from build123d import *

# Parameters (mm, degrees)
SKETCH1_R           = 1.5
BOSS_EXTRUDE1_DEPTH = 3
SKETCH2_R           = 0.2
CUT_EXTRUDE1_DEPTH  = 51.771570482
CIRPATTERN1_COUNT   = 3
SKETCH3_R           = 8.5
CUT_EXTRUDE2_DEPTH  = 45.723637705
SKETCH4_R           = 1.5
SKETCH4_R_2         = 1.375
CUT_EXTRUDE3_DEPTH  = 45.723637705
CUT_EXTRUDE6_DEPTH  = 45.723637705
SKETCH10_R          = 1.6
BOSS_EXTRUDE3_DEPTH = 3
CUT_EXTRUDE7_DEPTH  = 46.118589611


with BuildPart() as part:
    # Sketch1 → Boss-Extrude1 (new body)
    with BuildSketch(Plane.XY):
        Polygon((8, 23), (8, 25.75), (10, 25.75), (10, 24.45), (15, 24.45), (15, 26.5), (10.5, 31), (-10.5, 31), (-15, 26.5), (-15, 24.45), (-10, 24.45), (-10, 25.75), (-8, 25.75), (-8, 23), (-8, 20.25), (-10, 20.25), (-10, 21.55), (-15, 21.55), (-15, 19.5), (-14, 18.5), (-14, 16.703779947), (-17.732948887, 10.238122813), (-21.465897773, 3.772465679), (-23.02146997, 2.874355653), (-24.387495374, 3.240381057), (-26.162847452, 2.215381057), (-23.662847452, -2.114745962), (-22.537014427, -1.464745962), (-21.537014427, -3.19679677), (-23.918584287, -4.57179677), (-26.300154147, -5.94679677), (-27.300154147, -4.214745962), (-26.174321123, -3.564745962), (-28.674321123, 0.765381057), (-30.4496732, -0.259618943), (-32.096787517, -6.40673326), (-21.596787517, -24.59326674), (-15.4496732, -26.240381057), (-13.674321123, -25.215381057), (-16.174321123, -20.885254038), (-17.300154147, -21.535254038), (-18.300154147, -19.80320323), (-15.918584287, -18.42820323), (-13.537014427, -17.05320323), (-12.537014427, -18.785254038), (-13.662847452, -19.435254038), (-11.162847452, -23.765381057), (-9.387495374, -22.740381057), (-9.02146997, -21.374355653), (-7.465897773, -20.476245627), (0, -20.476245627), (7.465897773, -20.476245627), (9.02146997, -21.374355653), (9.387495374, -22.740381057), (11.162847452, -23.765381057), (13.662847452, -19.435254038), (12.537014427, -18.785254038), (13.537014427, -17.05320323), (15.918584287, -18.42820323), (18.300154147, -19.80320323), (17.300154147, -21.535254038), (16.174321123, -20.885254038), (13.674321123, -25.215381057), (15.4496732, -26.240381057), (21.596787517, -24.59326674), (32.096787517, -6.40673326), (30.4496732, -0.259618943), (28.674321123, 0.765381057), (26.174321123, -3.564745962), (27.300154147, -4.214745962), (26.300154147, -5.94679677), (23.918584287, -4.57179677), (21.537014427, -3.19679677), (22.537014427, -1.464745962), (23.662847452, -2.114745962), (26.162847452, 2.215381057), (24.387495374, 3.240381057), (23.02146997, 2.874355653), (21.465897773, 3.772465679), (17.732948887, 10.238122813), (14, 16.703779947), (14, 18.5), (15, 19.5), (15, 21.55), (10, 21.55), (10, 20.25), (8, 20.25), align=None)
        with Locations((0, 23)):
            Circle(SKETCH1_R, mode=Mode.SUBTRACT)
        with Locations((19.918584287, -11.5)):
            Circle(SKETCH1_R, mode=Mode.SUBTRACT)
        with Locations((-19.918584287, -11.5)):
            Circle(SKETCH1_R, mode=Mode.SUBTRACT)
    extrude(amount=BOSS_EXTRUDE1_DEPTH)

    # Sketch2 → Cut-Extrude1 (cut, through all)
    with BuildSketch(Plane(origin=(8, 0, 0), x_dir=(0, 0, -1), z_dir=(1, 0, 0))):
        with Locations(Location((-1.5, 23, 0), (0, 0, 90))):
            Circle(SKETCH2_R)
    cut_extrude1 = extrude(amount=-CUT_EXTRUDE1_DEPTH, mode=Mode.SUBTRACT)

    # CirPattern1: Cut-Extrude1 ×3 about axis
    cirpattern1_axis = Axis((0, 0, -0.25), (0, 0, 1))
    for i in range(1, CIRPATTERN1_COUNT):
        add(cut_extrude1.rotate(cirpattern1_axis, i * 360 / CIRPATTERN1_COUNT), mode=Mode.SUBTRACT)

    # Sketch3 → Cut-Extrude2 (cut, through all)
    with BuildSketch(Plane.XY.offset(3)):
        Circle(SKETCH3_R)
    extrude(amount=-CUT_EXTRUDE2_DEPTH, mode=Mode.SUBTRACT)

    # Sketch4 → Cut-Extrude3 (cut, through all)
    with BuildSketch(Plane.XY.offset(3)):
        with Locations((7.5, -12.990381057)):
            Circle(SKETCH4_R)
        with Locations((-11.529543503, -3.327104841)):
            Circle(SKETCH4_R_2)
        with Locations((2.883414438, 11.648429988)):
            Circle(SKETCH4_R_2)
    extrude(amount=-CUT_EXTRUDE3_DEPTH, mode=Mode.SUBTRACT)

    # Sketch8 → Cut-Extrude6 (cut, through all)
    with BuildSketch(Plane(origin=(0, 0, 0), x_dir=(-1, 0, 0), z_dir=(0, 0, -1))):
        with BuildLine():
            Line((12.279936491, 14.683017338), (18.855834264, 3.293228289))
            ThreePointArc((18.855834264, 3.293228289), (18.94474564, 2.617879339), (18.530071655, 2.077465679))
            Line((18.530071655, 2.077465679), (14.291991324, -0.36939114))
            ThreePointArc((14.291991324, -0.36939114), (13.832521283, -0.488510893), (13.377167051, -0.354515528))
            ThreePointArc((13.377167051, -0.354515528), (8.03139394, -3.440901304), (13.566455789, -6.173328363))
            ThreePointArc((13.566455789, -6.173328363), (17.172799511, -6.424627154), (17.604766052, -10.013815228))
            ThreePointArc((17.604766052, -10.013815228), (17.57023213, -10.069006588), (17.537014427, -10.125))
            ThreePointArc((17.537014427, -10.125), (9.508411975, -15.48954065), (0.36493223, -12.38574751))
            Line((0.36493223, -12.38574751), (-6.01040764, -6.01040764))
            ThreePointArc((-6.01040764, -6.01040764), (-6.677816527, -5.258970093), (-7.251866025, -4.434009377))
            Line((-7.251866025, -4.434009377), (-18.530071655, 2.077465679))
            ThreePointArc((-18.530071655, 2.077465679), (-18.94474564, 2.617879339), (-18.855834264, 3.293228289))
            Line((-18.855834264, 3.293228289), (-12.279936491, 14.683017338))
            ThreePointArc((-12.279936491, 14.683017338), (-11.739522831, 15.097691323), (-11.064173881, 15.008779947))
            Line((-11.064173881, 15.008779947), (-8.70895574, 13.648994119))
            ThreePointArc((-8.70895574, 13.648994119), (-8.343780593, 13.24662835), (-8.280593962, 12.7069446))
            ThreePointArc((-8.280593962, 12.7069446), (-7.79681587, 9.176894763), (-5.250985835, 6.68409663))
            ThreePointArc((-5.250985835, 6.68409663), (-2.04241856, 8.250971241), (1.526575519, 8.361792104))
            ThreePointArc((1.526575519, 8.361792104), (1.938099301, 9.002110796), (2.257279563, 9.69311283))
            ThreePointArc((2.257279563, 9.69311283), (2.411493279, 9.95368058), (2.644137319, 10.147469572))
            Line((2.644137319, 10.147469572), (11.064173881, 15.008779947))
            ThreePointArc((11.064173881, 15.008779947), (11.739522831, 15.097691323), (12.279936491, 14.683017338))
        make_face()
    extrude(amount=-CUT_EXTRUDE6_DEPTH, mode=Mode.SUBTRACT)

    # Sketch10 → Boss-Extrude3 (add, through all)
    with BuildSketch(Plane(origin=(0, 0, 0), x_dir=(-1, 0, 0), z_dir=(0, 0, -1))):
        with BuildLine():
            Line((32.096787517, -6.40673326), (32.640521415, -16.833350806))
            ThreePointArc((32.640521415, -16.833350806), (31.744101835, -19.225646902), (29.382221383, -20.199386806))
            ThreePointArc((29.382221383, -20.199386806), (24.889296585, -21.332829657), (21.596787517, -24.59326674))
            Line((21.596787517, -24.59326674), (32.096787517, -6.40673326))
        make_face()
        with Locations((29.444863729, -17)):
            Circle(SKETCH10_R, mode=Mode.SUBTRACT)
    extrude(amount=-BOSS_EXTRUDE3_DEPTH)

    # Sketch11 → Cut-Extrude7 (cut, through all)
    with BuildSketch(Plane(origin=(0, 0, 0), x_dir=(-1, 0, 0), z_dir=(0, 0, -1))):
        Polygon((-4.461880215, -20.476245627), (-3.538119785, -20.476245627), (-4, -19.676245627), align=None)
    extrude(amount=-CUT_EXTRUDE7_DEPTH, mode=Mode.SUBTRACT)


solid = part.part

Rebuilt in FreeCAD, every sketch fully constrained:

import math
import FreeCAD as App
import Part
import Sketcher
Q = App.Units.Quantity


def add_polygon(sketch, points):
    """Adds a closed chain of lines whose ends are joined by coincident constraints."""
    first, n = sketch.GeometryCount, len(points)
    for a, b in zip(points, points[1:] + points[:1]):
        sketch.addGeometry(Part.LineSegment(App.Vector(*a, 0), App.Vector(*b, 0)), False)
    for i in range(n):
        sketch.addConstraint(Sketcher.Constraint("Coincident", first + i, 2, first + (i + 1) % n, 1))

doc = App.newDocument("Part")
params = doc.addObject("Spreadsheet::Sheet", "Params")
for row, (alias, value) in enumerate([
    ("sketch1_diameter", "3 mm"),
    ("sketch1_width", "2 mm"),
    ("sketch1_width2", "5 mm"),
    ("sketch1_width3", "21 mm"),
    ("sketch1_length", "5 mm"),
    ("pad1_length", "3 mm"),
    ("sketch2_diameter", "0.4 mm"),
    ("sketch3_diameter", "17 mm"),
    ("sketch4_diameter", "3 mm"),
    ("sketch4_diameter2", "2.75 mm"),
    ("sketch5_radius", "5.5 mm"),
    ("sketch5_radius2", "8.5 mm"),
    ("sketch5_radius3", "3.5 mm"),
    ("sketch5_radius4", "0.89 mm"),
    ("sketch5_radius5", "2.750001 mm"),
    ("sketch6_diameter", "3.2 mm"),
    ("sketch6_radius", "3.2 mm"),
    ("sketch6_length", "21 mm"),
    ("pad2_length", "3 mm"),
], start=1):
    params.set(f"A{row}", alias)
    params.set(f"B{row}", "=" + value)
    params.setAlias(f"B{row}", alias)

body = doc.addObject("PartDesign::Body", "Body")

sketch1 = body.newObject("Sketcher::SketchObject", "Sketch")
sketch1.AttachmentSupport = (doc.getObject("XY_Plane"), [""])
sketch1.MapMode = "FlatFace"
add_polygon(sketch1, [(8, 25.8), (10, 25.8), (10, 24.4), (15, 24.4), (15, 26.5), (10.5, 31), (-10.5, 31), (-15, 26.5), (-15, 24.4), (-10, 24.4), (-10, 25.8), (-8, 25.8), (-8, 20.2), (-10, 20.2), (-10, 21.6), (-15, 21.6), (-15, 19.5), (-14, 18.5), (-14, 16.7), (-17.7, 10.2), (-21.5, 3.8), (-23, 2.9), (-24.4, 3.2), (-26.2, 2.2), (-23.7, -2.1), (-22.5, -1.5), (-21.5, -3.2), (-26.3, -5.9), (-27.3, -4.2), (-26.2, -3.6), (-28.7, 0.8), (-30.4, -0.3), (-32.1, -6.4), (-21.6, -24.6), (-15.4, -26.2), (-13.7, -25.2), (-16.2, -20.9), (-17.3, -21.5), (-18.3, -19.8), (-13.5, -17.1), (-12.5, -18.8), (-13.7, -19.4), (-11.2, -23.8), (-9.4, -22.7), (-9, -21.4), (-7.5, -20.5), (7.5, -20.5), (9, -21.4), (9.4, -22.7), (11.2, -23.8), (13.7, -19.4), (12.5, -18.8), (13.5, -17.1), (18.3, -19.8), (17.3, -21.5), (16.2, -20.9), (13.7, -25.2), (15.4, -26.2), (21.6, -24.6), (32.1, -6.4), (30.4, -0.3), (28.7, 0.8), (26.2, -3.6), (27.3, -4.2), (26.3, -5.9), (21.5, -3.2), (22.5, -1.5), (23.7, -2.1), (26.2, 2.2), (24.4, 3.2), (23, 2.9), (21.5, 3.8), (17.7, 10.2), (14, 16.7), (14, 18.5), (15, 19.5), (15, 21.6), (10, 21.6), (10, 20.2), (8, 20.2)])
sketch1.addGeometry(Part.Circle(App.Vector(-19.9, -11.5, 0), App.Vector(0, 0, 1), 1.5), False)
sketch1.addGeometry(Part.Circle(App.Vector(19.9, -11.5, 0), App.Vector(0, 0, 1), 1.5), False)
sketch1.addGeometry(Part.Circle(App.Vector(0, 23, 0), App.Vector(0, 0, 1), 1.5), False)
sketch1.addConstraint([
    Sketcher.Constraint("Horizontal", 0),
    Sketcher.Constraint("Vertical", 1),
    Sketcher.Constraint("Horizontal", 2),
    Sketcher.Constraint("Vertical", 3),
    Sketcher.Constraint("Horizontal", 5),
    Sketcher.Constraint("Vertical", 7),
    Sketcher.Constraint("Horizontal", 8),
    Sketcher.Constraint("Vertical", 9),
    Sketcher.Constraint("Horizontal", 10),
    Sketcher.Constraint("Vertical", 11),
    Sketcher.Constraint("Horizontal", 12),
    Sketcher.Constraint("Vertical", 13),
    Sketcher.Constraint("Horizontal", 14),
    Sketcher.Constraint("Vertical", 15),
    Sketcher.Constraint("Vertical", 17),
    Sketcher.Constraint("Horizontal", 45),
    Sketcher.Constraint("Vertical", 73),
    Sketcher.Constraint("Vertical", 75),
    Sketcher.Constraint("Horizontal", 76),
    Sketcher.Constraint("Vertical", 77),
    Sketcher.Constraint("Horizontal", 78),
    Sketcher.Constraint("Vertical", 79),
    Sketcher.Constraint("Equal", 80, 81),
    Sketcher.Constraint("Equal", 81, 82),
    Sketcher.Constraint("Symmetric", 80, 3, 81, 3, -2),
    Sketcher.Constraint("Symmetric", 3, 2, 6, 2, -2),
    Sketcher.Constraint("Symmetric", 1, 2, 8, 2, -2),
    Sketcher.Constraint("Symmetric", 43, 2, 46, 2, -2),
    Sketcher.Constraint("Symmetric", 42, 2, 47, 2, -2),
    Sketcher.Constraint("Symmetric", 41, 2, 48, 2, -2),
    Sketcher.Constraint("Symmetric", 40, 2, 49, 2, -2),
    Sketcher.Constraint("Symmetric", 39, 2, 50, 2, -2),
    Sketcher.Constraint("Symmetric", 38, 2, 51, 2, -2),
    Sketcher.Constraint("Symmetric", 37, 2, 52, 2, -2),
    Sketcher.Constraint("Symmetric", 36, 2, 53, 2, -2),
    Sketcher.Constraint("Symmetric", 35, 2, 54, 2, -2),
    Sketcher.Constraint("Symmetric", 34, 2, 55, 2, -2),
    Sketcher.Constraint("Symmetric", 33, 2, 56, 2, -2),
    Sketcher.Constraint("Symmetric", 32, 2, 57, 2, -2),
    Sketcher.Constraint("Symmetric", 31, 2, 58, 2, -2),
    Sketcher.Constraint("Symmetric", 30, 2, 59, 2, -2),
    Sketcher.Constraint("Symmetric", 29, 2, 60, 2, -2),
    Sketcher.Constraint("Symmetric", 28, 2, 61, 2, -2),
    Sketcher.Constraint("Symmetric", 27, 2, 62, 2, -2),
    Sketcher.Constraint("Symmetric", 26, 2, 63, 2, -2),
    Sketcher.Constraint("Symmetric", 25, 2, 64, 2, -2),
    Sketcher.Constraint("Symmetric", 24, 2, 65, 2, -2),
    Sketcher.Constraint("Symmetric", 23, 2, 66, 2, -2),
    Sketcher.Constraint("Symmetric", 22, 2, 67, 2, -2),
    Sketcher.Constraint("Symmetric", 21, 2, 68, 2, -2),
    Sketcher.Constraint("Symmetric", 20, 2, 69, 2, -2),
    Sketcher.Constraint("Symmetric", 19, 2, 70, 2, -2),
    Sketcher.Constraint("Symmetric", 18, 2, 71, 2, -2),
    Sketcher.Constraint("Symmetric", 17, 2, 72, 2, -2),
    Sketcher.Constraint("Symmetric", 15, 2, 74, 2, -2),
    Sketcher.Constraint("Symmetric", 13, 2, 76, 2, -2),
    Sketcher.Constraint("Symmetric", 11, 2, 78, 2, -2),
    Sketcher.Constraint("PointOnObject", 82, 3, -2),
    Sketcher.Constraint("Perpendicular", 4, 6),
    Sketcher.Constraint("Perpendicular", 6, 16),
    Sketcher.Constraint("Parallel", 18, 19),
    Sketcher.Constraint("Parallel", 20, 22),
    Sketcher.Constraint("Perpendicular", 22, 23),
    Sketcher.Constraint("Perpendicular", 23, 24),
    Sketcher.Constraint("Perpendicular", 24, 25),
    Sketcher.Constraint("Perpendicular", 25, 26),
    Sketcher.Constraint("Perpendicular", 26, 27),
    Sketcher.Constraint("Perpendicular", 27, 28),
    Sketcher.Constraint("Perpendicular", 28, 29),
    Sketcher.Constraint("Perpendicular", 29, 30),
    Sketcher.Constraint("Perpendicular", 21, 31),
    Sketcher.Constraint("Perpendicular", 30, 32),
    Sketcher.Constraint("Perpendicular", 31, 33),
    Sketcher.Constraint("Perpendicular", 32, 34),
    Sketcher.Constraint("Perpendicular", 34, 35),
    Sketcher.Constraint("Perpendicular", 35, 36),
    Sketcher.Constraint("Perpendicular", 36, 37),
    Sketcher.Constraint("Perpendicular", 37, 38),
    Sketcher.Constraint("Perpendicular", 38, 39),
    Sketcher.Constraint("Perpendicular", 39, 40),
    Sketcher.Constraint("Perpendicular", 40, 41),
    Sketcher.Constraint("Perpendicular", 41, 42),
    Sketcher.Constraint("Perpendicular", 33, 43),
    Sketcher.Constraint("Parallel", 42, 44),
    Sketcher.Constraint("Perpendicular", 19, 46),
    Sketcher.Constraint("Parallel", 46, 48),
    Sketcher.Constraint("Perpendicular", 16, 74),
    Sketcher.Constraint("Horizontal", 0, 2, 9, 2),
    Sketcher.Constraint("Horizontal", 16, 2, 73, 2),
    Sketcher.Constraint("Vertical", 9, 2, 12, 2),
    Sketcher.Constraint("Vertical", 7, 2, 14, 2),
    Sketcher.Constraint("Equal", 9, 13),
    Sketcher.Constraint("Equal", 7, 15),
    Sketcher.Constraint("Equal", 18, 19),
    Sketcher.Constraint("Equal", 16, 21),
    Sketcher.Constraint("Equal", 25, 27),
    Sketcher.Constraint("Equal", 24, 28),
    Sketcher.Constraint("Equal", 23, 29),
    Sketcher.Constraint("Equal", 22, 30),
    Sketcher.Constraint("Equal", 6, 31),
    Sketcher.Constraint("Equal", 31, 33),
    Sketcher.Constraint("Equal", 30, 34),
    Sketcher.Constraint("Equal", 29, 35),
    Sketcher.Constraint("Equal", 28, 36),
    Sketcher.Constraint("Equal", 27, 37),
    Sketcher.Constraint("Equal", 26, 38),
    Sketcher.Constraint("Equal", 37, 39),
    Sketcher.Constraint("Equal", 36, 40),
    Sketcher.Constraint("Equal", 35, 41),
    Sketcher.Constraint("Equal", 34, 42),
    Sketcher.Constraint("Equal", 21, 43),
    Sketcher.Constraint("Equal", 20, 44),
    Sketcher.Constraint("Diameter", 80, 3.0),
    Sketcher.Constraint("DistanceX", 0, 1, 0, 2, 2.0),
    Sketcher.Constraint("DistanceX", 2, 1, 2, 2, 5.0),
    Sketcher.Constraint("DistanceX", 5, 2, 5, 1, 21.0),
    Sketcher.Constraint("Angle", 18, Q("-120 deg")),
    Sketcher.Constraint("Angle", 21, Q("165 deg")),
    Sketcher.Constraint("Distance", 23, 5.0),
    Sketcher.Constraint("Distance", 25, 2.0),
    Sketcher.Constraint("Distance", 32, 21.0),
    Sketcher.Constraint("DistanceY", 1, 2, 1, 1, 1.3),
    Sketcher.Constraint("DistanceY", 11, 2, 11, 1, 5.5),
    Sketcher.Constraint("DistanceY", -1, 1, 82, 3, 23.0),
    Sketcher.Constraint("DistanceX", -1, 1, 0, 2, 10.0),
    Sketcher.Constraint("DistanceY", -1, 1, 4, 2, 31.0),
    Sketcher.Constraint("DistanceX", 16, 2, -1, 1, 14.0),
    Sketcher.Constraint("Distance", 24, 1.3),
    Sketcher.Constraint("Distance", 26, 5.5),
    Sketcher.Constraint("DistanceY", 3, 1, 3, 2, 2.05),
    Sketcher.Constraint("DistanceY", 80, 3, -1, 1, 11.5),
    Sketcher.Constraint("Distance", 22, 2.05),
    Sketcher.Constraint("DistanceY", 17, 2, 17, 1, 1.79622),
    Sketcher.Constraint("Distance", 20, 1.79622),
    Sketcher.Constraint("DistanceX", 45, 1, 45, 2, 14.931796),
    Sketcher.Constraint("DistanceX", 80, 3, -1, 1, 19.918584),
])
sketch1.setExpression("Constraints[192]", "Params.sketch1_diameter")
sketch1.setExpression("Constraints[193]", "Params.sketch1_width")
sketch1.setExpression("Constraints[194]", "Params.sketch1_width2")
sketch1.setExpression("Constraints[195]", "Params.sketch1_width3")
sketch1.setExpression("Constraints[198]", "Params.sketch1_length")
pad1 = body.newObject("PartDesign::Pad", "Pad")
pad1.Profile = sketch1
pad1.setExpression("Length", "Params.pad1_length")

sketch2 = body.newObject("Sketcher::SketchObject", "Sketch001")
sketch2.AttachmentSupport = (doc.getObject("YZ_Plane"), [""])
sketch2.MapMode = "FlatFace"
sketch2.AttachmentOffset = App.Placement(App.Vector(0, 0, 8), App.Rotation())
sketch2.addGeometry(Part.Circle(App.Vector(23, 1.5, 0), App.Vector(0, 0, 1), 0.2), False)
sketch2.addConstraint([
    Sketcher.Constraint("Diameter", 0, 0.4),
    Sketcher.Constraint("DistanceX", -1, 1, 0, 3, 23.0),
    Sketcher.Constraint("DistanceY", -1, 1, 0, 3, 1.5),
])
sketch2.setExpression("Constraints[0]", "Params.sketch2_diameter")
pocket1 = body.newObject("PartDesign::Pocket", "Pocket")
pocket1.Profile = sketch2
pocket1.Type = "ThroughAll"
doc.recompute()

polarpattern = body.newObject("PartDesign::PolarPattern", "PolarPattern")
polarpattern.Originals = [pocket1]
polarpattern.Axis = (doc.getObject("Z_Axis"), [""])
polarpattern.Angle = 360
polarpattern.Occurrences = 3
body.Tip = polarpattern

sketch3 = body.newObject("Sketcher::SketchObject", "Sketch002")
sketch3.AttachmentSupport = (doc.getObject("XY_Plane"), [""])
sketch3.MapMode = "FlatFace"
sketch3.AttachmentOffset = App.Placement(App.Vector(0, 0, 3), App.Rotation())
sketch3.addGeometry(Part.Circle(App.Vector(0, 0, 0), App.Vector(0, 0, 1), 8), False)
sketch3.addConstraint([
    Sketcher.Constraint("Coincident", 0, 3, -1, 1),
    Sketcher.Constraint("Diameter", 0, 17.0),
])
sketch3.setExpression("Constraints[1]", "Params.sketch3_diameter")
pocket2 = body.newObject("PartDesign::Pocket", "Pocket001")
pocket2.Profile = sketch3
pocket2.Type = "ThroughAll"

sketch4 = body.newObject("Sketcher::SketchObject", "Sketch003")
sketch4.AttachmentSupport = (doc.getObject("XY_Plane"), [""])
sketch4.MapMode = "FlatFace"
sketch4.AttachmentOffset = App.Placement(App.Vector(0, 0, 3), App.Rotation())
sketch4.addGeometry([
    Part.Circle(App.Vector(7.5, -13, 0), App.Vector(0, 0, 1), 1.5),
    Part.Circle(App.Vector(-11.5, -3.3, 0), App.Vector(0, 0, 1), 1.4),
    Part.Circle(App.Vector(2.9, 11.6, 0), App.Vector(0, 0, 1), 1.4),
], False)
sketch4.addConstraint([
    Sketcher.Constraint("Equal", 1, 2),
    Sketcher.Constraint("Diameter", 0, 3.0),
    Sketcher.Constraint("Diameter", 1, 2.75),
    Sketcher.Constraint("DistanceX", -1, 1, 0, 3, 7.5),
    Sketcher.Constraint("DistanceY", 0, 3, -1, 1, 12.990381),
    Sketcher.Constraint("DistanceY", -1, 1, 2, 3, 11.64843),
    Sketcher.Constraint("DistanceX", 1, 3, -1, 1, 11.529544),
    Sketcher.Constraint("DistanceY", 1, 3, -1, 1, 3.327105),
    Sketcher.Constraint("DistanceX", -1, 1, 2, 3, 2.883414),
])
sketch4.setExpression("Constraints[1]", "Params.sketch4_diameter")
sketch4.setExpression("Constraints[2]", "Params.sketch4_diameter2")
pocket3 = body.newObject("PartDesign::Pocket", "Pocket002")
pocket3.Profile = sketch4
pocket3.Type = "ThroughAll"

sketch5 = body.newObject("Sketcher::SketchObject", "Sketch004")
sketch5.AttachmentSupport = (doc.getObject("XY_Plane"), [""])
sketch5.MapMode = "FlatFace"
sketch5.addGeometry([
    Part.LineSegment(App.Vector(-18.86, 3.29, 0), App.Vector(-12.28, 14.68, 0)),
    Part.ArcOfCircle(Part.Circle(App.Vector(-11.51, 14.24, 0), App.Vector(0, 0, 1), 0.89), math.radians(60), math.radians(150)),
    Part.LineSegment(App.Vector(-11.06, 15.01, 0), App.Vector(-2.64, 10.15, 0)),
    Part.ArcOfCircle(Part.Circle(App.Vector(-3.09, 9.38, 0), App.Vector(0, 0, 1), 0.89), math.radians(21), math.radians(60)),
    Part.ArcOfCircle(Part.Circle(App.Vector(2.88, 11.65, 0), App.Vector(0, 0, 1), 5.5), math.radians(-159.18), math.radians(-143.3)),
    Part.ArcOfCircle(Part.Circle(App.Vector(0, 0, 0), App.Vector(0, 0, 1), 8.5), math.radians(52), math.radians(100)),
    Part.ArcOfCircle(Part.Circle(App.Vector(2.88, 11.65, 0), App.Vector(0, 0, 1), 5.5), math.radians(-65), math.radians(11)),
    Part.ArcOfCircle(Part.Circle(App.Vector(9.15, 12.88, 0), App.Vector(0, 0, 1), 0.89), math.radians(120), math.radians(191)),
    Part.LineSegment(App.Vector(8.71, 13.65, 0), App.Vector(11.06, 15.01, 0)),
    Part.ArcOfCircle(Part.Circle(App.Vector(11.51, 14.24, 0), App.Vector(0, 0, 1), 0.89), math.radians(30), math.radians(120)),
    Part.LineSegment(App.Vector(12.28, 14.68, 0), App.Vector(18.86, 3.29, 0)),
    Part.ArcOfCircle(Part.Circle(App.Vector(18.09, 2.85, 0), App.Vector(0, 0, 1), 0.89), math.radians(-60), math.radians(30)),
    Part.LineSegment(App.Vector(18.53, 2.08, 0), App.Vector(7.25, -4.43, 0)),
    Part.ArcOfCircle(Part.Circle(App.Vector(0, 0, 0), App.Vector(0, 0, 1), 8.5), math.radians(-45), math.radians(-31.44)),
    Part.LineSegment(App.Vector(6.01, -6.01, 0), App.Vector(-0.36, -12.39, 0)),
    Part.ArcOfCircle(Part.Circle(App.Vector(-8.08, -4.67, 0), App.Vector(0, 0, 1), 10.92), math.radians(-150), math.radians(-45)),
    Part.ArcOfCircle(Part.Circle(App.Vector(-19.92, -11.5, 0), App.Vector(0, 0, 1), 2.75), math.radians(30), math.radians(32.71)),
    Part.ArcOfCircle(Part.Circle(App.Vector(-15.22, -8.48, 0), App.Vector(0, 0, 1), 2.84), math.radians(54), math.radians(213)),
    Part.ArcOfCircle(Part.Circle(App.Vector(-11.53, -3.33, 0), App.Vector(0, 0, 1), 3.5), math.radians(-126), math.radians(122)),
    Part.ArcOfCircle(Part.Circle(App.Vector(-13.85, 0.4, 0), App.Vector(0, 0, 1), 0.89), math.radians(-120), math.radians(-58)),
    Part.LineSegment(App.Vector(-14.29, -0.37, 0), App.Vector(-18.53, 2.08, 0)),
    Part.ArcOfCircle(Part.Circle(App.Vector(-18.09, 2.85, 0), App.Vector(0, 0, 1), 0.89), math.radians(150), math.radians(240)),
], False)
sketch5.addConstraint([
    Sketcher.Constraint("Tangent", 0, 2, 1, 2),
    Sketcher.Constraint("Tangent", 1, 1, 2, 1),
    Sketcher.Constraint("Tangent", 2, 2, 3, 2),
    Sketcher.Constraint("Tangent", 3, 1, 4, 1),
    Sketcher.Constraint("Coincident", 4, 2, 5, 2),
    Sketcher.Constraint("Coincident", 5, 1, 6, 1),
    Sketcher.Constraint("Tangent", 6, 2, 7, 2),
    Sketcher.Constraint("Tangent", 7, 1, 8, 1),
    Sketcher.Constraint("Tangent", 8, 2, 9, 2),
    Sketcher.Constraint("Tangent", 9, 1, 10, 1),
    Sketcher.Constraint("Tangent", 10, 2, 11, 2),
    Sketcher.Constraint("Tangent", 11, 1, 12, 1),
    Sketcher.Constraint("Coincident", 12, 2, 13, 2),
    Sketcher.Constraint("Tangent", 13, 1, 14, 1),
    Sketcher.Constraint("Tangent", 14, 2, 15, 2),
    Sketcher.Constraint("Tangent", 15, 1, 16, 1),
    Sketcher.Constraint("Tangent", 16, 2, 17, 2),
    Sketcher.Constraint("Tangent", 17, 1, 18, 1),
    Sketcher.Constraint("Tangent", 18, 2, 19, 2),
    Sketcher.Constraint("Tangent", 19, 1, 20, 1),
    Sketcher.Constraint("Tangent", 20, 2, 21, 2),
    Sketcher.Constraint("Tangent", 21, 1, 0, 1),
    Sketcher.Constraint("Coincident", 5, 3, -1, 1),
    Sketcher.Constraint("Coincident", 13, 3, -1, 1),
    Sketcher.Constraint("Coincident", 6, 3, 4, 3),
    Sketcher.Constraint("Equal", 1, 3),
    Sketcher.Constraint("Equal", 4, 6),
    Sketcher.Constraint("Equal", 3, 7),
    Sketcher.Constraint("Equal", 7, 9),
    Sketcher.Constraint("Equal", 9, 11),
    Sketcher.Constraint("Equal", 5, 13),
    Sketcher.Constraint("Equal", 11, 19),
    Sketcher.Constraint("Equal", 19, 21),
    Sketcher.Constraint("Symmetric", 1, 3, 9, 3, -2),
    Sketcher.Constraint("Symmetric", 11, 3, 21, 3, -2),
    Sketcher.Constraint("Perpendicular", 0, 2),
    Sketcher.Constraint("Perpendicular", 8, 10),
    Sketcher.Constraint("Perpendicular", 10, 12),
    Sketcher.Constraint("Parallel", 2, 20),
    Sketcher.Constraint("Radius", 4, 5.5),
    Sketcher.Constraint("Radius", 5, 8.5),
    Sketcher.Constraint("Radius", 18, 3.5),
    Sketcher.Constraint("Angle", 0, Q("60 deg")),
    Sketcher.Constraint("Angle", 14, Q("-135 deg")),
    Sketcher.Constraint("Radius", 1, 0.89),
    Sketcher.Constraint("Radius", 16, 2.750001),
    Sketcher.Constraint("DistanceY", 16, 3, -1, 1, 11.5),
    Sketcher.Constraint("Radius", 17, 2.83716),
    Sketcher.Constraint("DistanceY", 15, 1, -1, 1, 10.125),
    Sketcher.Constraint("Radius", 15, 10.915855),
    Sketcher.Constraint("DistanceY", 6, 3, 7, 3, 1.229802),
    Sketcher.Constraint("DistanceY", 11, 3, 6, 3, 8.800202),
    Sketcher.Constraint("DistanceY", 15, 3, 21, 3, 7.515301),
    Sketcher.Constraint("DistanceX", 0, 2, 3, 3, 9.190799),
    Sketcher.Constraint("DistanceY", 13, 1, 12, 2, 1.576398),
    Sketcher.Constraint("DistanceX", 19, 3, -1, 1, 13.846991),
    Sketcher.Constraint("DistanceY", 17, 1, -1, 1, 6.173328),
])
sketch5.setExpression("Constraints[39]", "Params.sketch5_radius")
sketch5.setExpression("Constraints[40]", "Params.sketch5_radius2")
sketch5.setExpression("Constraints[41]", "Params.sketch5_radius3")
sketch5.setExpression("Constraints[44]", "Params.sketch5_radius4")
sketch5.setExpression("Constraints[45]", "Params.sketch5_radius5")
pocket4 = body.newObject("PartDesign::Pocket", "Pocket003")
pocket4.Profile = sketch5
pocket4.Type = "ThroughAll"
pocket4.Reversed = True

sketch6 = body.newObject("Sketcher::SketchObject", "Sketch005")
sketch6.AttachmentSupport = (doc.getObject("XY_Plane"), [""])
sketch6.MapMode = "FlatFace"
sketch6.addGeometry([
    Part.LineSegment(App.Vector(-32.6, -16.8, 0), App.Vector(-32.1, -6.4, 0)),
    Part.LineSegment(App.Vector(-32.1, -6.4, 0), App.Vector(-21.6, -24.6, 0)),
    Part.ArcOfCircle(Part.Circle(App.Vector(-29.2, -29, 0), App.Vector(0, 0, 1), 8.8), math.radians(30), math.radians(91)),
    Part.ArcOfCircle(Part.Circle(App.Vector(-29.4, -17, 0), App.Vector(0, 0, 1), 3.2), math.radians(177), math.radians(271)),
    Part.Circle(App.Vector(-29.4, -17, 0), App.Vector(0, 0, 1), 1.6),
], False)
sketch6.addConstraint([
    Sketcher.Constraint("Coincident", 0, 2, 1, 1),
    Sketcher.Constraint("Tangent", 1, 2, 2, 1),
    Sketcher.Constraint("Tangent", 2, 2, 3, 2),
    Sketcher.Constraint("Tangent", 3, 1, 0, 1),
    Sketcher.Constraint("Coincident", 4, 3, 3, 3),
    Sketcher.Constraint("Diameter", 4, 3.2),
    Sketcher.Constraint("Radius", 3, 3.2),
    Sketcher.Constraint("Angle", 1, Q("-60 deg")),
    Sketcher.Constraint("Distance", 1, 21.0),
    Sketcher.Constraint("DistanceY", 3, 3, -1, 1, 17.0),
    Sketcher.Constraint("Radius", 2, 8.791129),
    Sketcher.Constraint("DistanceX", 3, 1, 2, 2, 3.2583),
    Sketcher.Constraint("DistanceX", 2, 3, -1, 1, 29.210129),
])
sketch6.setExpression("Constraints[5]", "Params.sketch6_diameter")
sketch6.setExpression("Constraints[6]", "Params.sketch6_radius")
sketch6.setExpression("Constraints[8]", "Params.sketch6_length")
pad2 = body.newObject("PartDesign::Pad", "Pad001")
pad2.Profile = sketch6
pad2.setExpression("Length", "Params.pad2_length")

sketch7 = body.newObject("Sketcher::SketchObject", "Sketch006")
sketch7.AttachmentSupport = (doc.getObject("XY_Plane"), [""])
sketch7.MapMode = "FlatFace"
add_polygon(sketch7, [(4.5, -20.5), (3.5, -20.5), (4, -19.7)])
sketch7.addConstraint([
    Sketcher.Constraint("Horizontal", 0),
    Sketcher.Constraint("Equal", 1, 2),
    Sketcher.Constraint("Angle", 1, Q("60 deg")),
    Sketcher.Constraint("DistanceX", -1, 1, 1, 2, 4.0),
    Sketcher.Constraint("DistanceY", 0, 2, 1, 2, 0.8),
    Sketcher.Constraint("DistanceY", 0, 2, -1, 1, 20.476246),
])
pocket5 = body.newObject("PartDesign::Pocket", "Pocket004")
pocket5.Profile = sketch7
pocket5.Type = "ThroughAll"
pocket5.Reversed = True

doc.recompute()
